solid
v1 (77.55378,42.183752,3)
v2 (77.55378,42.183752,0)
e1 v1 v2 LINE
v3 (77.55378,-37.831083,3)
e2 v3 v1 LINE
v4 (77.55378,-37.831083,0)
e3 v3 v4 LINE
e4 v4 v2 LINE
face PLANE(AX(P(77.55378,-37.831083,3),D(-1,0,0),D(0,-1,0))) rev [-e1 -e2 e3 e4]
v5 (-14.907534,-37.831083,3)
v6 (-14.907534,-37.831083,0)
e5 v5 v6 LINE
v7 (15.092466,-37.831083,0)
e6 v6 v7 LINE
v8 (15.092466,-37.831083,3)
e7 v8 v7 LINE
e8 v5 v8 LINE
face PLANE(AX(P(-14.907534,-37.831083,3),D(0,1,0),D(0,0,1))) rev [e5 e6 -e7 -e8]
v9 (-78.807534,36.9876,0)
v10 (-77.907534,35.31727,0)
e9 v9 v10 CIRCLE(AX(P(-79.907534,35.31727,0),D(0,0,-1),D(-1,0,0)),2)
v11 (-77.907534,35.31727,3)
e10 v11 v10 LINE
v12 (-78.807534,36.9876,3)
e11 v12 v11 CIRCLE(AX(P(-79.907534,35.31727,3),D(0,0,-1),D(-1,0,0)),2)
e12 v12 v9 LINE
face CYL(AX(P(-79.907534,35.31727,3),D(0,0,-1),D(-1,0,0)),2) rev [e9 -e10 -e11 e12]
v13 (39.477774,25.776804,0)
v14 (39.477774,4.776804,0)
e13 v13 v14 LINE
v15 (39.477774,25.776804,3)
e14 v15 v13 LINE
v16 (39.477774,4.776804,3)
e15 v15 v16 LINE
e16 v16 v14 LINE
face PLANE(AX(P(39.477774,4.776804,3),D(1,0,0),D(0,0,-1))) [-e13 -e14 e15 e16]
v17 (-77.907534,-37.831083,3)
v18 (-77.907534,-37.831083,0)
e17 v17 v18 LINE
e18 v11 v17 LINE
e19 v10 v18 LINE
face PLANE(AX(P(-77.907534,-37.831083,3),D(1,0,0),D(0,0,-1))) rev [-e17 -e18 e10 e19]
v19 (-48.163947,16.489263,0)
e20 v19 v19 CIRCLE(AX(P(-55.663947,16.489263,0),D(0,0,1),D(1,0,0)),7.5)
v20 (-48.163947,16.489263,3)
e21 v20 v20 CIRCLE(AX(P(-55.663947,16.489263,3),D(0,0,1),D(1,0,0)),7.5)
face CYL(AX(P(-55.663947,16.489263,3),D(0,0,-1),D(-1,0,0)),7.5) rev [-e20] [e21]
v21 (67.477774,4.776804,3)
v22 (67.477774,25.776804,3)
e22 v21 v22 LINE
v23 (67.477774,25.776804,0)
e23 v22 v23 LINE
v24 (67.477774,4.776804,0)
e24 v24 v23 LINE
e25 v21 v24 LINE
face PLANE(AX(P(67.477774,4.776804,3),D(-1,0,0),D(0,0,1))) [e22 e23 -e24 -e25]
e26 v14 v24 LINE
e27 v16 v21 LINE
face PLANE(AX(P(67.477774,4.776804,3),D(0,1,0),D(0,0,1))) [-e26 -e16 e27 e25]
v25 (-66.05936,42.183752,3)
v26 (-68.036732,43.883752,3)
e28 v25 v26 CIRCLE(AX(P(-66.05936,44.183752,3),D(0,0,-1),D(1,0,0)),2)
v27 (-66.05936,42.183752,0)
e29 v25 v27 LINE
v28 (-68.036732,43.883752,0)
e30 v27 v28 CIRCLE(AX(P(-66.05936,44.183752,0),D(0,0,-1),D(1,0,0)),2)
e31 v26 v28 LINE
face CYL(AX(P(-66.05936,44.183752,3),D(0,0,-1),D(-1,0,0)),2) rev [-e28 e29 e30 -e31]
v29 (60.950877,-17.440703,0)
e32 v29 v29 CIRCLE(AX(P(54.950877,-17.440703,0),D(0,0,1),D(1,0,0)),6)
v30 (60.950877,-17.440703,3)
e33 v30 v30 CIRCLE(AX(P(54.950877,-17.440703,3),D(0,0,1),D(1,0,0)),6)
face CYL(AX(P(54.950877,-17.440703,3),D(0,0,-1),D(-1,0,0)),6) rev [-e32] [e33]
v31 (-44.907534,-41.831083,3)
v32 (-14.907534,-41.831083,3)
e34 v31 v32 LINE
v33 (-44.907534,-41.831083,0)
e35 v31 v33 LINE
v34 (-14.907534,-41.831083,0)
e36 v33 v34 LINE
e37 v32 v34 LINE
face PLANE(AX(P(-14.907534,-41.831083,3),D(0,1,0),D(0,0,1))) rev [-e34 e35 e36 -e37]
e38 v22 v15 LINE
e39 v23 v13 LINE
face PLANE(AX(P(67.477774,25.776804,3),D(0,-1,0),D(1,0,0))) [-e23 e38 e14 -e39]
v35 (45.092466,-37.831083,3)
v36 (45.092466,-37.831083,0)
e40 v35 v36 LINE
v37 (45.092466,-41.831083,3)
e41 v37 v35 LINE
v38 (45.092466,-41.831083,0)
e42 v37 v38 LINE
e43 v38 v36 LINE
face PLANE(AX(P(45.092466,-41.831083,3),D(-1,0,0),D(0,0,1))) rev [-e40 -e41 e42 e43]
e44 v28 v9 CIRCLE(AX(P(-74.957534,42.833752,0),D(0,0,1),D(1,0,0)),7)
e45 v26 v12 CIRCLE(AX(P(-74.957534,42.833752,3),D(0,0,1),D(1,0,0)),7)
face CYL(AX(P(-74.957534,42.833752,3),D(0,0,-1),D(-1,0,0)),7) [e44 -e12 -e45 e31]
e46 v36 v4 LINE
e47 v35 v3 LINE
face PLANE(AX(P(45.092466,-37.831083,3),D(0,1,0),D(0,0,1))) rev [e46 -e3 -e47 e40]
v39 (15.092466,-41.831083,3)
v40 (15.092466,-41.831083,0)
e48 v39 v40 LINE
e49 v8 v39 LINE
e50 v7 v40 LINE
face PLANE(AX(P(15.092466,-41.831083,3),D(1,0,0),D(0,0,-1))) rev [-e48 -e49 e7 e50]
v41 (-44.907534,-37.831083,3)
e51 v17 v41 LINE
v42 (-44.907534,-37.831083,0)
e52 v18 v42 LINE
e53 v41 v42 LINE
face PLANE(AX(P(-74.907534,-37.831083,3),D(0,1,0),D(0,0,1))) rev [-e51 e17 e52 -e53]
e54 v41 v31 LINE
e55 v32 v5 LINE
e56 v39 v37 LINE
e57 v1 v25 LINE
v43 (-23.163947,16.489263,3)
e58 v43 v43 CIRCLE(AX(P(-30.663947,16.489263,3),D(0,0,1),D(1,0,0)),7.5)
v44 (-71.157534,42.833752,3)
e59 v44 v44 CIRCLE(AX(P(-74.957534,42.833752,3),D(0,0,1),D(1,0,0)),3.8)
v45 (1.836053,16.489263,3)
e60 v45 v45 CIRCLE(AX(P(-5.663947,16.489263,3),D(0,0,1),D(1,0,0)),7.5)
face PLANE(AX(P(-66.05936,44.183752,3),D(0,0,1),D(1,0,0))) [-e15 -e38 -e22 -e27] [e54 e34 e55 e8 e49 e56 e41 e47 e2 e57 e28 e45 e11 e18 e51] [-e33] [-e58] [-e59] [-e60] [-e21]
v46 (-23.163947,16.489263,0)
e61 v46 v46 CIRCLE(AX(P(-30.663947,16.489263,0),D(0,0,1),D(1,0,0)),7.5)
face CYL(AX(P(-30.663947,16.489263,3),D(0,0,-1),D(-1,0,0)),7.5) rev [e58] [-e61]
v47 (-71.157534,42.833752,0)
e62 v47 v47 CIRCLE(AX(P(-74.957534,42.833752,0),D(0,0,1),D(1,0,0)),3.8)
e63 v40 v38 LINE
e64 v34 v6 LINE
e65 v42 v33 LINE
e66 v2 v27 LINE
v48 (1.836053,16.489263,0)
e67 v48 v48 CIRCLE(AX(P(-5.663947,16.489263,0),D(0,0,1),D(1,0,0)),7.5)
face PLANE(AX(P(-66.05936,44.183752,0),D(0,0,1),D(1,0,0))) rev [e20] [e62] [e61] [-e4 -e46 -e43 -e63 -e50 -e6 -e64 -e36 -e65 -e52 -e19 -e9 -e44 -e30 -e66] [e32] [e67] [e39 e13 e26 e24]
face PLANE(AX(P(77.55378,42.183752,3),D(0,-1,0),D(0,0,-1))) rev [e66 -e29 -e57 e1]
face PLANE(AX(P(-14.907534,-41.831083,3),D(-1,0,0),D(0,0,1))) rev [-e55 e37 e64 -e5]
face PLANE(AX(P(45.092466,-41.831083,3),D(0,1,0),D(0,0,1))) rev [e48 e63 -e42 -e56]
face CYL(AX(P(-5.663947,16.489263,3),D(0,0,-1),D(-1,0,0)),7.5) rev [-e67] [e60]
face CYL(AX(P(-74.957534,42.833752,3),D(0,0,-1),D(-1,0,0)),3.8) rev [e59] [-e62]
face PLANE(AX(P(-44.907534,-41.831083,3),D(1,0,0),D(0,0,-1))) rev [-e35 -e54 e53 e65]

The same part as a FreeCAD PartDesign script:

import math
import FreeCAD as App
import Part
import Sketcher
from FreeCAD import Vector

doc = App.newDocument("Part")
body = doc.addObject("PartDesign::Body", "Body")

sketch1 = body.newObject("Sketcher::SketchObject", "Sketch")
sketch1.AttachmentSupport = (doc.getObject("XY_Plane"), [""])
sketch1.MapMode = "FlatFace"
sketch1.addGeometry([
    Part.LineSegment(Vector(-44.9, -37.8, 0), Vector(-44.9, -41.8, 0)),
    Part.LineSegment(Vector(-44.9, -41.8, 0), Vector(-14.9, -41.8, 0)),
    Part.LineSegment(Vector(-14.9, -41.8, 0), Vector(-14.9, -37.8, 0)),
    Part.LineSegment(Vector(-14.9, -37.8, 0), Vector(15.1, -37.8, 0)),
    Part.LineSegment(Vector(15.1, -37.8, 0), Vector(15.1, -41.8, 0)),
    Part.LineSegment(Vector(15.1, -41.8, 0), Vector(45.1, -41.8, 0)),
    Part.LineSegment(Vector(45.1, -41.8, 0), Vector(45.1, -37.8, 0)),
    Part.LineSegment(Vector(45.1, -37.8, 0), Vector(77.6, -37.8, 0)),
    Part.LineSegment(Vector(77.6, -37.8, 0), Vector(77.6, 42.2, 0)),
    Part.LineSegment(Vector(77.6, 42.2, 0), Vector(-66.1, 42.2, 0)),
    Part.ArcOfCircle(Part.Circle(Vector(-66.1, 44.2, 0), Vector(0, 0, 1), 2), math.radians(-171), math.radians(-90)),
    Part.ArcOfCircle(Part.Circle(Vector(-75, 42.8, 0), Vector(0, 0, 1), 7), math.radians(9), math.radians(237)),
    Part.ArcOfCircle(Part.Circle(Vector(-79.9, 35.3, 0), Vector(0, 0, 1), 2), math.radians(0), math.radians(57)),
    Part.LineSegment(Vector(-77.9, 35.3, 0), Vector(-77.9, -37.8, 0)),
    Part.LineSegment(Vector(-77.9, -37.8, 0), Vector(-44.9, -37.8, 0)),
    Part.Circle(Vector(55, -17.4, 0), Vector(0, 0, 1), 6),
    Part.LineSegment(Vector(39.5, 4.8, 0), Vector(39.5, 25.8, 0)),
    Part.LineSegment(Vector(39.5, 25.8, 0), Vector(67.5, 25.8, 0)),
    Part.LineSegment(Vector(67.5, 25.8, 0), Vector(67.5, 4.8, 0)),
    Part.LineSegment(Vector(67.5, 4.8, 0), Vector(39.5, 4.8, 0)),
    Part.Circle(Vector(-5.7, 16.5, 0), Vector(0, 0, 1), 7.5),
    Part.Circle(Vector(-30.7, 16.5, 0), Vector(0, 0, 1), 7.5),
    Part.Circle(Vector(-55.7, 16.5, 0), Vector(0, 0, 1), 7.5),
    Part.Circle(Vector(-75, 42.8, 0), Vector(0, 0, 1), 3.8),
], False)
sketch1.addConstraint([
    Sketcher.Constraint("Coincident", 0, 2, 1, 1),
    Sketcher.Constraint("Coincident", 1, 2, 2, 1),
    Sketcher.Constraint("Coincident", 2, 2, 3, 1),
    Sketcher.Constraint("Coincident", 3, 2, 4, 1),
    Sketcher.Constraint("Coincident", 4, 2, 5, 1),
    Sketcher.Constraint("Coincident", 5, 2, 6, 1),
    Sketcher.Constraint("Coincident", 6, 2, 7, 1),
    Sketcher.Constraint("Coincident", 7, 2, 8, 1),
    Sketcher.Constraint("Coincident", 8, 2, 9, 1),
    Sketcher.Constraint("Tangent", 9, 2, 10, 2),
    Sketcher.Constraint("Tangent", 10, 1, 11, 1),
    Sketcher.Constraint("Tangent", 11, 2, 12, 2),
    Sketcher.Constraint("Tangent", 12, 1, 13, 1),
    Sketcher.Constraint("Coincident", 13, 2, 14, 1),
    Sketcher.Constraint("Coincident", 14, 2, 0, 1),
    Sketcher.Constraint("Coincident", 16, 2, 17, 1),
    Sketcher.Constraint("Coincident", 17, 2, 18, 1),
    Sketcher.Constraint("Coincident", 18, 2, 19, 1),
    Sketcher.Constraint("Coincident", 19, 2, 16, 1),
    Sketcher.Constraint("Vertical", 0),
    Sketcher.Constraint("Horizontal", 1),
    Sketcher.Constraint("Vertical", 2),
    Sketcher.Constraint("Horizontal", 3),
    Sketcher.Constraint("Vertical", 4),
    Sketcher.Constraint("Horizontal", 5),
    Sketcher.Constraint("Vertical", 6),
    Sketcher.Constraint("Horizontal", 7),
    Sketcher.Constraint("Vertical", 8),
    Sketcher.Constraint("Horizontal", 9),
    Sketcher.Constraint("Vertical", 13),
    Sketcher.Constraint("Horizontal", 14),
    Sketcher.Constraint("Vertical", 16),
    Sketcher.Constraint("Horizontal", 17),
    Sketcher.Constraint("Vertical", 18),
    Sketcher.Constraint("Horizontal", 19),
    Sketcher.Constraint("Coincident", 23, 3, 11, 3),
    Sketcher.Constraint("Equal", 10, 12),
    Sketcher.Constraint("Equal", 20, 21),
    Sketcher.Constraint("Equal", 21, 22),
    Sketcher.Constraint("Horizontal", 20, 3, 21, 3),
    Sketcher.Constraint("Horizontal", 21, 3, 22, 3),
    Sketcher.Constraint("Horizontal", 1, 2, 4, 2),
    Sketcher.Constraint("Horizontal", 3, 2, 6, 2),
    Sketcher.Constraint("Horizontal", 7, 2, 13, 2),
    Sketcher.Constraint("Equal", 1, 3),
    Sketcher.Constraint("Equal", 3, 5),
    Sketcher.Constraint("Diameter", 15, 12.0),
    Sketcher.Constraint("Diameter", 20, 15.0),
    Sketcher.Constraint("Radius", 10, 2.0),
    Sketcher.Constraint("Radius", 11, 7.0),
    Sketcher.Constraint("Diameter", 23, 7.6),
    Sketcher.Constraint("DistanceX", 1, 1, 1, 2, 30.0),
    Sketcher.Constraint("DistanceX", 14, 1, 14, 2, 33.0),
    Sketcher.Constraint("DistanceX", 17, 1, 17, 2, 28.0),
    Sketcher.Constraint("DistanceY", 0, 2, 0, 1, 4.0),
    Sketcher.Constraint("DistanceY", 16, 1, 16, 2, 21.0),
    Sketcher.Constraint("DistanceX", 21, 3, 20, 3, 25.0),
    Sketcher.Constraint("DistanceX", 22, 3, 21, 3, 25.0),
    Sketcher.Constraint("DistanceY", 10, 1, 10, 3, 0.3),
    Sketcher.Constraint("DistanceX", 12, 3, 11, 2, 1.1),
    Sketcher.Constraint("DistanceX", 9, 2, 9, 1, 143.61314),
    Sketcher.Constraint("DistanceY", -1, 1, 11, 2, 36.9876),
    Sketcher.Constraint("DistanceY", 8, 1, 8, 2, 80.014835),
    Sketcher.Constraint("DistanceX", 10, 3, -1, 1, 66.05936),
    Sketcher.Constraint("DistanceX", 11, 3, 15, 3, 129.908411),
    Sketcher.Constraint("DistanceY", 20, 3, 10, 3, 27.69449),
    Sketcher.Constraint("DistanceY", 1, 2, 15, 3, 24.39038),
    Sketcher.Constraint("DistanceY", 16, 2, 8, 2, 16.406949),
    Sketcher.Constraint("DistanceX", 20, 3, 16, 2, 45.141721),
    Sketcher.Constraint("DistanceX", 16, 2, 6, 2, 5.614692),
])
pad1 = body.newObject("PartDesign::Pad", "Pad")
pad1.Profile = sketch1
pad1.Length = 3

doc.recompute()
